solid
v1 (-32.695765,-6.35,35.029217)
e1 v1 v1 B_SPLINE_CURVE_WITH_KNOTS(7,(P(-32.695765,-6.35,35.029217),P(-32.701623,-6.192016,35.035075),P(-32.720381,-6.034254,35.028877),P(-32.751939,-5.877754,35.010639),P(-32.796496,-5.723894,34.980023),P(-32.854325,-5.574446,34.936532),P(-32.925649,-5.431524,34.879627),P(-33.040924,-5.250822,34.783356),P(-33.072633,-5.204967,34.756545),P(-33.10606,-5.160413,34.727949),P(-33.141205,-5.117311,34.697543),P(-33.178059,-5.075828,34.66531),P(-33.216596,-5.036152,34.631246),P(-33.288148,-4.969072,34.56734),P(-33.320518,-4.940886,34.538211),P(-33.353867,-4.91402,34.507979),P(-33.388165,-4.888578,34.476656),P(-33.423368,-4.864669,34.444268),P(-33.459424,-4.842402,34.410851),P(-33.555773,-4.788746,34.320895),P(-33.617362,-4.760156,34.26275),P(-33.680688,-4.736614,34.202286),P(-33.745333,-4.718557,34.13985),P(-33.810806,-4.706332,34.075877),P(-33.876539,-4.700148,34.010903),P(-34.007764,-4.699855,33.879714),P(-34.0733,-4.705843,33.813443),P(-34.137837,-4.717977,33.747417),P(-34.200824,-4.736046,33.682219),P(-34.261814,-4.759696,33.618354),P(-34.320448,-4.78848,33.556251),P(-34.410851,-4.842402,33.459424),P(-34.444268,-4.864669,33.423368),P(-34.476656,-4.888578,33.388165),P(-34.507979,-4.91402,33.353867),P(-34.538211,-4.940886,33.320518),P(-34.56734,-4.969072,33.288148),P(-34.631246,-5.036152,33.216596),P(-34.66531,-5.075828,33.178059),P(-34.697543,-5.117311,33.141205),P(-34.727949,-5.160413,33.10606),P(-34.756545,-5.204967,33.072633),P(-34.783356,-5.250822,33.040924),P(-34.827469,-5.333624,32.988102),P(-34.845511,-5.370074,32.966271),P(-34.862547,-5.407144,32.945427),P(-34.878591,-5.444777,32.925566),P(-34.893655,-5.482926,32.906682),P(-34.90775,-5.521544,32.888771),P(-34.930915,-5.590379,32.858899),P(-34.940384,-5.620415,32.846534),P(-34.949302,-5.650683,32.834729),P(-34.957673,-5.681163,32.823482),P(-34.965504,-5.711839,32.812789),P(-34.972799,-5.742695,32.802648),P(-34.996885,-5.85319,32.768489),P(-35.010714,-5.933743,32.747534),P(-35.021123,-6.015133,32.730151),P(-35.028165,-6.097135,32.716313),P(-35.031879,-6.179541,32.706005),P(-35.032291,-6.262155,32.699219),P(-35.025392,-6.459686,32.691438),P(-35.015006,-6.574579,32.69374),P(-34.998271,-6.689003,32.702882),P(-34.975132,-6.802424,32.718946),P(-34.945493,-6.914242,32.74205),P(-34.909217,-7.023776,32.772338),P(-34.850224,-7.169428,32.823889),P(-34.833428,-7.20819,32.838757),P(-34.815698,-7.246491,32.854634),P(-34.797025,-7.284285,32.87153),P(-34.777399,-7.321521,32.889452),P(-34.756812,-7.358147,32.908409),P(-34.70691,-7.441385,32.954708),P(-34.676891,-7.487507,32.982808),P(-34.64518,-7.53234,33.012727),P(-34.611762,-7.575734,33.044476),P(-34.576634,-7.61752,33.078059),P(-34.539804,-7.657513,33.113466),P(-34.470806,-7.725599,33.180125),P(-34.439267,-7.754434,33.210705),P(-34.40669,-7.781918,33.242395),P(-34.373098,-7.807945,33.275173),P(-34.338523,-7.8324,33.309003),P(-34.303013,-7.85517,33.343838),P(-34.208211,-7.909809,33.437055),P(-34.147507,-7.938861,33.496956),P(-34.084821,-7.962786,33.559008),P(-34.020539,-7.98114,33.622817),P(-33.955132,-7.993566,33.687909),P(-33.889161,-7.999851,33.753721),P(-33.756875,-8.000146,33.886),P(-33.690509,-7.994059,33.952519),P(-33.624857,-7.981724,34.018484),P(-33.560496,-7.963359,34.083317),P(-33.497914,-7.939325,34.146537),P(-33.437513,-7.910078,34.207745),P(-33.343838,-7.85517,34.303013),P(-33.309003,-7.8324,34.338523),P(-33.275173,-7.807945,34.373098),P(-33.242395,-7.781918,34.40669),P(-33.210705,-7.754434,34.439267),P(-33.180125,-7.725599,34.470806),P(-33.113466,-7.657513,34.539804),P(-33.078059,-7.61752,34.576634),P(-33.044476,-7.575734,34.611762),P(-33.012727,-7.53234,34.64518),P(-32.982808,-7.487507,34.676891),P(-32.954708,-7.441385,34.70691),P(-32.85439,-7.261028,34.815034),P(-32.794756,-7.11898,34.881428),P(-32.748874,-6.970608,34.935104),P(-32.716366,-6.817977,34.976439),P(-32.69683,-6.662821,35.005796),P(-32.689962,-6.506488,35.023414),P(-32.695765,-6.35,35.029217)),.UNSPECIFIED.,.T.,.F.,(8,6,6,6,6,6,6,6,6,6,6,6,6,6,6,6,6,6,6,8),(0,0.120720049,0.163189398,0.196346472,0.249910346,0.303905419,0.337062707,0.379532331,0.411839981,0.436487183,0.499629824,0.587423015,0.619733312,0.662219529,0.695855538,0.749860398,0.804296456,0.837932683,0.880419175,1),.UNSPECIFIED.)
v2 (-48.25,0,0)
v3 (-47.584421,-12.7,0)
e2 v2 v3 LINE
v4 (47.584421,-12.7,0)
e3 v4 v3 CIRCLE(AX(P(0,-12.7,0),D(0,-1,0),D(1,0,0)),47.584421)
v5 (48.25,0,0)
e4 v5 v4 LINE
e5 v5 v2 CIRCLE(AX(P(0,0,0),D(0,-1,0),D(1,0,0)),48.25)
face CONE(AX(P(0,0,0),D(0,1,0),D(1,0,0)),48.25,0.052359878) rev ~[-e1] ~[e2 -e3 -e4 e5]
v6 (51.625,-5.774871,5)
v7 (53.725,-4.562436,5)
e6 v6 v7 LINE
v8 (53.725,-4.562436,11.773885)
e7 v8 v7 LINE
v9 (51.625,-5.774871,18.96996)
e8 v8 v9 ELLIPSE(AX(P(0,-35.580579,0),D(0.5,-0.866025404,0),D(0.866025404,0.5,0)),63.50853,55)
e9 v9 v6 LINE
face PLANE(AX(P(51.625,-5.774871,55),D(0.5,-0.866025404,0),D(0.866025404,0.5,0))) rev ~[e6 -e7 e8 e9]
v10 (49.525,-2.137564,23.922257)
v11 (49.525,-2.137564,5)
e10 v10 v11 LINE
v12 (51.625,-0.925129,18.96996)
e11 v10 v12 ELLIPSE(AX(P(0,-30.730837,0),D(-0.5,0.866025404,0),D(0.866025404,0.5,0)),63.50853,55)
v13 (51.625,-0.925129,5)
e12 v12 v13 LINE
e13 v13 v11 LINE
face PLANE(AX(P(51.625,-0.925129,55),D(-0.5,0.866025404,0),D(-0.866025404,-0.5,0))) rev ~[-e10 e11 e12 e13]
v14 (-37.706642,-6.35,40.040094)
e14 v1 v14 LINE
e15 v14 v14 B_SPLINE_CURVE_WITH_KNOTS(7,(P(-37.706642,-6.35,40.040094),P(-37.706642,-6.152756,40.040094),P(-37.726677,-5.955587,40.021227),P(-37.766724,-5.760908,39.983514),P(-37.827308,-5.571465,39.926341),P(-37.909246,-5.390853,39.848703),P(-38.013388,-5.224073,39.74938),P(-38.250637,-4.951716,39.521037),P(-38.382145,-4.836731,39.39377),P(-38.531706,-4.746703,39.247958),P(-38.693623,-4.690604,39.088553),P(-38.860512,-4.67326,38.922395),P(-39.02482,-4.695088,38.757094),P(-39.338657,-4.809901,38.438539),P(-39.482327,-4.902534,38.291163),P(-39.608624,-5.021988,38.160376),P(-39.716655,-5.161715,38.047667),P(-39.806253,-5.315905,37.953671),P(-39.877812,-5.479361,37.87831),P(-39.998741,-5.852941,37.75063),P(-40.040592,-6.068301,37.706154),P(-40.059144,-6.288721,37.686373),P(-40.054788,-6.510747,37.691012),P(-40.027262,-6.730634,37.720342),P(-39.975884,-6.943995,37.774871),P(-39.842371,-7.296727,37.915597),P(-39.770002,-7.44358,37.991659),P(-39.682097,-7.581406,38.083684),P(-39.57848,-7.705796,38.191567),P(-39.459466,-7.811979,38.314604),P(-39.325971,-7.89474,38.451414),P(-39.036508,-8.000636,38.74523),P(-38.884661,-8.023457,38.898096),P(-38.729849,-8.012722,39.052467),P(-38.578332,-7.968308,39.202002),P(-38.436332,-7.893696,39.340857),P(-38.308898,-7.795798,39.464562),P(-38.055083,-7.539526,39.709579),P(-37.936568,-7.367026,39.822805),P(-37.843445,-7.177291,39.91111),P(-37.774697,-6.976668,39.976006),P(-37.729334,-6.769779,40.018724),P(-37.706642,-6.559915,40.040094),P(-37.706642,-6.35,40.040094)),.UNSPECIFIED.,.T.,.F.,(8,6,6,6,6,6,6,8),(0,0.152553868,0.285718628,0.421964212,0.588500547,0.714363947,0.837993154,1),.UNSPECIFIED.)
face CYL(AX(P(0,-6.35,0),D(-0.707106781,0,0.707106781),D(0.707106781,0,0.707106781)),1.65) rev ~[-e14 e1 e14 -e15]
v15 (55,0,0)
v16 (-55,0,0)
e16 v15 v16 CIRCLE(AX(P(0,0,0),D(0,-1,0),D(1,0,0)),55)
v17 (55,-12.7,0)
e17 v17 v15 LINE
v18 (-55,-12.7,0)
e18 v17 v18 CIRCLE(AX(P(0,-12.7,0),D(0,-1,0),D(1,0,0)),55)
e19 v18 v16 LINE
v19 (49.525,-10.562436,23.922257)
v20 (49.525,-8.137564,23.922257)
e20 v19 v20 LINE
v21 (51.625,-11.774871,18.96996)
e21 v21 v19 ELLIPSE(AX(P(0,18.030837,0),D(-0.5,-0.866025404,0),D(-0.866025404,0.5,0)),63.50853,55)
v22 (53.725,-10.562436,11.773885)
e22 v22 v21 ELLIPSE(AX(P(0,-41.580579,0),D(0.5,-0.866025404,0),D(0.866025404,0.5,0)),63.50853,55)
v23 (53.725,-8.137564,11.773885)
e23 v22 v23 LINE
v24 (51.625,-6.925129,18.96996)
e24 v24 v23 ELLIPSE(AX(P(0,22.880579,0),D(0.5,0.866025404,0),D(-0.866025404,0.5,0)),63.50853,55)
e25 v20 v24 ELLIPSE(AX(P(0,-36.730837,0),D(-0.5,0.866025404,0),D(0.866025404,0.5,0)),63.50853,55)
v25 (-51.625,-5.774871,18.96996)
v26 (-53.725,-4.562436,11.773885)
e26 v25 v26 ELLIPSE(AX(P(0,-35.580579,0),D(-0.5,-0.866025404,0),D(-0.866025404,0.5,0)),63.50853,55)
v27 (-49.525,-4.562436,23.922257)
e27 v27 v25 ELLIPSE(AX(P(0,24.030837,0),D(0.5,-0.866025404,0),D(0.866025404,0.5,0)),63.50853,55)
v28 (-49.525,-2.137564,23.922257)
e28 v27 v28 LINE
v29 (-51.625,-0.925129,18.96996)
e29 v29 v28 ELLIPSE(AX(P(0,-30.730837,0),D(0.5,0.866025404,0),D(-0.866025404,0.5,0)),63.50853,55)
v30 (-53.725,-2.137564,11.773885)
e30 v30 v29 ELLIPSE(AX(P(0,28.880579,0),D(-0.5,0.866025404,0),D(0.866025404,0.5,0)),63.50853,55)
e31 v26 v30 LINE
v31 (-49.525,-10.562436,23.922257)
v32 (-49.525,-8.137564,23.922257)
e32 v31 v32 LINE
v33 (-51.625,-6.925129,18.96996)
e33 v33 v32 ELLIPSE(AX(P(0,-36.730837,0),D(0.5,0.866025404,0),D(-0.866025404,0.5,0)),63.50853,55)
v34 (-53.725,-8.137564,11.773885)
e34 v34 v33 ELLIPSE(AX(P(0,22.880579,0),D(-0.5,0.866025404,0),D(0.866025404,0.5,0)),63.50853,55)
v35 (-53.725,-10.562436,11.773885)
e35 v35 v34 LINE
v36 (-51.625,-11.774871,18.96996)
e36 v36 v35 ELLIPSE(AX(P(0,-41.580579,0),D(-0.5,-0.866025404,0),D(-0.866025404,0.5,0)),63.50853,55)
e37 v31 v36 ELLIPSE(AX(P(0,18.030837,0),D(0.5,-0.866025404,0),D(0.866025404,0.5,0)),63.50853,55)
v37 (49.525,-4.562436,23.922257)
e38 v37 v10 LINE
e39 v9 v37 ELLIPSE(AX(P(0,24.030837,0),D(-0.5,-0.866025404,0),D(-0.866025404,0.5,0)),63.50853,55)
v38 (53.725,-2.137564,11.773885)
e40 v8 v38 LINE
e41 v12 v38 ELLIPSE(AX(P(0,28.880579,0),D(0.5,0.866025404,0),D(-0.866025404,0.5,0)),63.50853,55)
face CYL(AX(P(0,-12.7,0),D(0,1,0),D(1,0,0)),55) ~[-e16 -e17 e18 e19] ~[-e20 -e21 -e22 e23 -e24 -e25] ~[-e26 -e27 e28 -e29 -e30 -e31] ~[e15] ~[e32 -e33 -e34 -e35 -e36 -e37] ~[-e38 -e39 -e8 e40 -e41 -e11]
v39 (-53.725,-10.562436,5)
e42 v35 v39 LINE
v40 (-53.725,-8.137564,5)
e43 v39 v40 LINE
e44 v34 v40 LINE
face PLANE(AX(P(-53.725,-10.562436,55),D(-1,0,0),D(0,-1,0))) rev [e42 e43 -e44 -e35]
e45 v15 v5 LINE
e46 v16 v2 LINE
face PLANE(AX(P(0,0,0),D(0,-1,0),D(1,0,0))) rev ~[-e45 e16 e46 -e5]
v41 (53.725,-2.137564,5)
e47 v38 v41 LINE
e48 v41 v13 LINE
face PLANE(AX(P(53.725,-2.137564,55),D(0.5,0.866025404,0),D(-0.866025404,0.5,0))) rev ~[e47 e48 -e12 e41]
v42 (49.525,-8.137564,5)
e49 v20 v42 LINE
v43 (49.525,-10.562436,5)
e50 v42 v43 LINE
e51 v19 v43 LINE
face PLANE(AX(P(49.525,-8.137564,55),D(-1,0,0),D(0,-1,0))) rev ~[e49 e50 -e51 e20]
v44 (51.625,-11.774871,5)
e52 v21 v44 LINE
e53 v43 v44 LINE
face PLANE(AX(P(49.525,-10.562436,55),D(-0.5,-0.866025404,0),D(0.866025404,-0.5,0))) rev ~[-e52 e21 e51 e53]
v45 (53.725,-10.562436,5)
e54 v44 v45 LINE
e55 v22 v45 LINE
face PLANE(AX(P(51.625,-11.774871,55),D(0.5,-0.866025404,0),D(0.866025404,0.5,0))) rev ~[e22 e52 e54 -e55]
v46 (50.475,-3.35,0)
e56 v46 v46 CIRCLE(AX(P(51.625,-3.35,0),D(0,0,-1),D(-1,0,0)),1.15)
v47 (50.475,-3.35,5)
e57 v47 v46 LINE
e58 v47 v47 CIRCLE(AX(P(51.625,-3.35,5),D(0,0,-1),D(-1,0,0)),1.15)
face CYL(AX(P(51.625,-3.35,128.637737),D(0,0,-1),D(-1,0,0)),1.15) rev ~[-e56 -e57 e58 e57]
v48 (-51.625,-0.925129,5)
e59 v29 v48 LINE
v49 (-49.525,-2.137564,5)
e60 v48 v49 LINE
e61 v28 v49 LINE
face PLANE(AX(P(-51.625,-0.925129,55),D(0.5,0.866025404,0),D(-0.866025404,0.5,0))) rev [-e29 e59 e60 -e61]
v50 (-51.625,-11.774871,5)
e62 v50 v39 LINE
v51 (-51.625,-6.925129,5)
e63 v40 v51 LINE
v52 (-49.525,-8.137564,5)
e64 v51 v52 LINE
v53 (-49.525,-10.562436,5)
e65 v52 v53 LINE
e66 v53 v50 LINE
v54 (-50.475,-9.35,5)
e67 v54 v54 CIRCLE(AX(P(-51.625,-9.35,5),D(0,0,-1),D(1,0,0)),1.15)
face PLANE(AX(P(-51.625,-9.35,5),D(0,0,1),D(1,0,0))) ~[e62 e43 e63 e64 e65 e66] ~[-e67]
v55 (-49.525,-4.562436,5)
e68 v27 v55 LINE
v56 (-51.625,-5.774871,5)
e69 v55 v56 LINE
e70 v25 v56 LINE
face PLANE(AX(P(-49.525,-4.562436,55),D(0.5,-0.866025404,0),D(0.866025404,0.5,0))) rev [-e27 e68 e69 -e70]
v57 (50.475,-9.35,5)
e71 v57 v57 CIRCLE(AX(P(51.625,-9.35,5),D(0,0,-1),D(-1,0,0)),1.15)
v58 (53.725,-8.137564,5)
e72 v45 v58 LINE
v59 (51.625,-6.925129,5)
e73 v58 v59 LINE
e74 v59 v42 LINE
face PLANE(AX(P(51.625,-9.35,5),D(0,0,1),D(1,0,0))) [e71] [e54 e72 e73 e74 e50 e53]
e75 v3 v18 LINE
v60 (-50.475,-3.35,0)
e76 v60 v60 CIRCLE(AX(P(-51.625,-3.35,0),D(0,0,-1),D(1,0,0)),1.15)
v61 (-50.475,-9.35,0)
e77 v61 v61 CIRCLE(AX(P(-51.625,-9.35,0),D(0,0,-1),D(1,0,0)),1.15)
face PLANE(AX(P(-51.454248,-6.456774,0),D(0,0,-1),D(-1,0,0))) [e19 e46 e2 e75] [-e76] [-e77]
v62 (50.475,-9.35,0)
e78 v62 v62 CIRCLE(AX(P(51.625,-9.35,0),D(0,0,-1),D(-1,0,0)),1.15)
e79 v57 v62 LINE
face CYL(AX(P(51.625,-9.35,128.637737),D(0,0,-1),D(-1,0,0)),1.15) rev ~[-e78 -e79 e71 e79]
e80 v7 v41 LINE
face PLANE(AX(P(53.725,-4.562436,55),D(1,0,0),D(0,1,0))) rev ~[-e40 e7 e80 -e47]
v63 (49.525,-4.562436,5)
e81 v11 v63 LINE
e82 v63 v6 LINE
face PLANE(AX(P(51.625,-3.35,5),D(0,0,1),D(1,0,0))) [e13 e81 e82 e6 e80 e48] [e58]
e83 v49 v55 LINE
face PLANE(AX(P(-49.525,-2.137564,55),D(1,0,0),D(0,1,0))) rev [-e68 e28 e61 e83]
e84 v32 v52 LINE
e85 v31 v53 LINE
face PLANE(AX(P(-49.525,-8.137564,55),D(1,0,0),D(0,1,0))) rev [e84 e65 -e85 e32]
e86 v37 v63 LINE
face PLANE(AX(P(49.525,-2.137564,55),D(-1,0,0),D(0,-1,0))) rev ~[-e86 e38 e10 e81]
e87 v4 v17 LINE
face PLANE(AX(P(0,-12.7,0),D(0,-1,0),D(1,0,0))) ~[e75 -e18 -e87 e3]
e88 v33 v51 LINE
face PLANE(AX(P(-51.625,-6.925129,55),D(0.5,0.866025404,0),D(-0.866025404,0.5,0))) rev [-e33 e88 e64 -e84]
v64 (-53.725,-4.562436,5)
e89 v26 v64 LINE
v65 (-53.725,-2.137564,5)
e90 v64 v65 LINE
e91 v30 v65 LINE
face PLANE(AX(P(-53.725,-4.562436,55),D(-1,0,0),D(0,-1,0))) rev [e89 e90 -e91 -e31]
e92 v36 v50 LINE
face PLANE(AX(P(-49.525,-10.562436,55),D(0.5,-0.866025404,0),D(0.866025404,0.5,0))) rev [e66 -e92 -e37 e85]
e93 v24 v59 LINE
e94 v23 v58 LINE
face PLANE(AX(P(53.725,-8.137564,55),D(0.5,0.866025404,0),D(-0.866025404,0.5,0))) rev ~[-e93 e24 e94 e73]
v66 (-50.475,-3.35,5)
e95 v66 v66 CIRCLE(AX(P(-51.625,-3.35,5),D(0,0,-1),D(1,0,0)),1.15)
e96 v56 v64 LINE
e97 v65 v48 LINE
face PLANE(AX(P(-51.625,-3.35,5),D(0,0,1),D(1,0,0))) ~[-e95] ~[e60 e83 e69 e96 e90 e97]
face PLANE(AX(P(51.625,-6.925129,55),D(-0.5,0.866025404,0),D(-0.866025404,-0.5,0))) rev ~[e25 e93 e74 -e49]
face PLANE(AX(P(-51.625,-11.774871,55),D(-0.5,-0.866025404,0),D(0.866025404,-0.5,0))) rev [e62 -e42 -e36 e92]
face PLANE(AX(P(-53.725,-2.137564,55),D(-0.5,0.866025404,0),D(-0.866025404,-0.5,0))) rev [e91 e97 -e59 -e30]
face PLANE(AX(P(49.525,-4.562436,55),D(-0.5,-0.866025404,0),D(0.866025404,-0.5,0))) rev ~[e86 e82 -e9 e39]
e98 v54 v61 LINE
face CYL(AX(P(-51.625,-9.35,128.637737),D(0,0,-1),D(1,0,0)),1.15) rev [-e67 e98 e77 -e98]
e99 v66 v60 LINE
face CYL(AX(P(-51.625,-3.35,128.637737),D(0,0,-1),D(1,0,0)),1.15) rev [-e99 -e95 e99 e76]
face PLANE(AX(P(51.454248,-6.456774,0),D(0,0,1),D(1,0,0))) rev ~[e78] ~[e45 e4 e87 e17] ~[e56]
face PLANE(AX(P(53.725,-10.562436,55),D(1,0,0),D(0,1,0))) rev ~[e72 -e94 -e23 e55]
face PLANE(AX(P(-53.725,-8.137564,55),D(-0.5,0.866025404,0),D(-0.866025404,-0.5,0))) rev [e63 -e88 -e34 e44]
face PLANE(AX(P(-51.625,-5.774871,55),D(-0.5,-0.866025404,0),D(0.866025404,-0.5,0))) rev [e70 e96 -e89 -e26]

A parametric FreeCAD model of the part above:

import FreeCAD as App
import Part
import Sketcher
from FreeCAD import Vector
Q = App.Units.Quantity

doc = App.newDocument("Part")
body = doc.addObject("PartDesign::Body", "Body")

sketch1 = body.newObject("Sketcher::SketchObject", "Sketch")
sketch1.AttachmentSupport = (doc.getObject("XY_Plane"), [""])
sketch1.MapMode = "FlatFace"
sketch1.addGeometry([
    Part.LineSegment(Vector(48, 0, 0), Vector(48, -13, 0)),
    Part.LineSegment(Vector(48, -13, 0), Vector(55, -13, 0)),
    Part.LineSegment(Vector(55, -13, 0), Vector(55, 0, 0)),
    Part.LineSegment(Vector(55, 0, 0), Vector(48, 0, 0)),
], False)
sketch1.addConstraint([
    Sketcher.Constraint("Coincident", 0, 2, 1, 1),
    Sketcher.Constraint("Coincident", 1, 2, 2, 1),
    Sketcher.Constraint("Coincident", 2, 2, 3, 1),
    Sketcher.Constraint("Coincident", 3, 2, 0, 1),
    Sketcher.Constraint("Horizontal", 1),
    Sketcher.Constraint("Vertical", 2),
    Sketcher.Constraint("Horizontal", 3),
    Sketcher.Constraint("PointOnObject", 2, 2, -1),
    Sketcher.Constraint("Angle", 0, Q("-93 deg")),
    Sketcher.Constraint("DistanceY", 2, 1, 2, 2, Q("12.7 mm")),
    Sketcher.Constraint("DistanceX", -1, 1, 1, 2, Q("55 mm")),
    Sketcher.Constraint("DistanceX", 3, 2, 3, 1, Q("6.75 mm")),
])
revolution = body.newObject("PartDesign::Revolution", "Revolution")
revolution.Profile = sketch1
revolution.ReferenceAxis = (sketch1, ["V_Axis"])
revolution.Angle = 180
revolution.Reversed = True

sketch2 = body.newObject("Sketcher::SketchObject", "Sketch001")
sketch2.AttachmentSupport = (doc.getObject("XY_Plane"), [""])
sketch2.MapMode = "FlatFace"
sketch2.AttachmentOffset = App.Placement(Vector(0, 0, 55), App.Rotation())
sketch2.addGeometry([
    Part.LineSegment(Vector(53.7, -4.6, 0), Vector(53.7, -2.1, 0)),
    Part.LineSegment(Vector(53.7, -2.1, 0), Vector(51.6, -0.9, 0)),
    Part.LineSegment(Vector(51.6, -0.9, 0), Vector(49.5, -2.1, 0)),
    Part.LineSegment(Vector(49.5, -2.1, 0), Vector(49.5, -4.6, 0)),
    Part.LineSegment(Vector(49.5, -4.6, 0), Vector(51.6, -5.8, 0)),
    Part.LineSegment(Vector(51.6, -5.8, 0), Vector(53.7, -4.6, 0)),
    Part.LineSegment(Vector(53.7, -10.6, 0), Vector(53.7, -8.1, 0)),
    Part.LineSegment(Vector(53.7, -8.1, 0), Vector(51.6, -6.9, 0)),
    Part.LineSegment(Vector(51.6, -6.9, 0), Vector(49.5, -8.1, 0)),
    Part.LineSegment(Vector(49.5, -8.1, 0), Vector(49.5, -10.6, 0)),
    Part.LineSegment(Vector(49.5, -10.6, 0), Vector(51.6, -11.8, 0)),
    Part.LineSegment(Vector(51.6, -11.8, 0), Vector(53.7, -10.6, 0)),
], False)
sketch2.addConstraint([
    Sketcher.Constraint("Coincident", 0, 2, 1, 1),
    Sketcher.Constraint("Coincident", 1, 2, 2, 1),
    Sketcher.Constraint("Coincident", 2, 2, 3, 1),
    Sketcher.Constraint("Coincident", 3, 2, 4, 1),
    Sketcher.Constraint("Coincident", 4, 2, 5, 1),
    Sketcher.Constraint("Coincident", 5, 2, 0, 1),
    Sketcher.Constraint("Coincident", 6, 2, 7, 1),
    Sketcher.Constraint("Coincident", 7, 2, 8, 1),
    Sketcher.Constraint("Coincident", 8, 2, 9, 1),
    Sketcher.Constraint("Coincident", 9, 2, 10, 1),
    Sketcher.Constraint("Coincident", 10, 2, 11, 1),
    Sketcher.Constraint("Coincident", 11, 2, 6, 1),
    Sketcher.Constraint("Vertical", 0),
    Sketcher.Constraint("Vertical", 3),
    Sketcher.Constraint("Vertical", 6),
    Sketcher.Constraint("Vertical", 9),
    Sketcher.Constraint("Parallel", 1, 4),
    Sketcher.Constraint("Parallel", 2, 5),
    Sketcher.Constraint("Parallel", 4, 7),
    Sketcher.Constraint("Parallel", 5, 8),
    Sketcher.Constraint("Parallel", 7, 10),
    Sketcher.Constraint("Parallel", 8, 11),
    Sketcher.Constraint("Horizontal", 0, 2, 2, 2),
    Sketcher.Constraint("Horizontal", 3, 2, 5, 2),
    Sketcher.Constraint("Horizontal", 6, 2, 8, 2),
    Sketcher.Constraint("Horizontal", 9, 2, 11, 2),
    Sketcher.Constraint("Vertical", 1, 2, 4, 2),
    Sketcher.Constraint("Vertical", 5, 2, 6, 2),
    Sketcher.Constraint("Vertical", 4, 2, 7, 2),
    Sketcher.Constraint("Equal", 3, 6),
    Sketcher.Constraint("Angle", 1, Q("150 deg")),
    Sketcher.Constraint("DistanceY", 6, 2, 0, 2, Q("6 mm")),
    Sketcher.Constraint("DistanceX", 1, 2, 0, 2, Q("2.1 mm")),
    Sketcher.Constraint("DistanceX", -1, 1, 0, 2, Q("53.725 mm")),
    Sketcher.Constraint("DistanceY", 0, 1, 0, 2, Q("2.424871 mm")),
    Sketcher.Constraint("DistanceY", 1, 2, -1, 1, Q("0.925129 mm")),
])
pocket1 = body.newObject("PartDesign::Pocket", "Pocket")
pocket1.Profile = sketch2
pocket1.Length = 50

sketch3 = body.newObject("Sketcher::SketchObject", "Sketch002")
sketch3.AttachmentSupport = (doc.getObject("XY_Plane"), [""])
sketch3.MapMode = "FlatFace"
sketch3.AttachmentOffset = App.Placement(Vector(0, 0, 5), App.Rotation())
sketch3.addGeometry([
    Part.Circle(Vector(51.6, -9.3, 0), Vector(0, 0, 1), 1.1),
    Part.Circle(Vector(51.6, -3.4, 0), Vector(0, 0, 1), 1.1),
], False)
sketch3.addConstraint([
    Sketcher.Constraint("Equal", 0, 1),
    Sketcher.Constraint("Vertical", 0, 3, 1, 3),
    Sketcher.Constraint("Diameter", 0, Q("2.3 mm")),
    Sketcher.Constraint("DistanceY", 0, 3, 1, 3, Q("6 mm")),
    Sketcher.Constraint("DistanceY", 0, 3, -1, 1, Q("9.35 mm")),
    Sketcher.Constraint("DistanceX", -1, 1, 0, 3, Q("51.625 mm")),
])
doc.recompute()
hole = body.newObject("PartDesign::Hole", "Hole")
hole.Profile = sketch3
hole.ThreadType = "None"
hole.Diameter = 2.3
hole.DepthType = "ThroughAll"
doc.recompute()

mirrored = body.newObject("PartDesign::Mirrored", "Mirrored")
mirrored.Originals = [pocket1, hole]
mirrored.MirrorPlane = (doc.getObject("YZ_Plane"), [""])
body.Tip = mirrored

sketch4 = body.newObject("Sketcher::SketchObject", "Sketch003")
sketch4.Placement = App.Placement(Vector(0, 0, 0), App.Rotation(Vector(0.707106781, 0, 0.707106781), Vector(0, 0.999999999, 0), Vector(-0.707106781, 0, 0.707106781), "ZXY"))
sketch4.addGeometry(Part.Circle(Vector(0, -6.3, 0), Vector(0, 0, 1), 1.6), False)
sketch4.addConstraint([
    Sketcher.Constraint("PointOnObject", 0, 3, -2),
    Sketcher.Constraint("Diameter", 0, Q("3.3 mm")),
    Sketcher.Constraint("DistanceY", 0, 3, -1, 1, Q("6.35 mm")),
])
pocket2 = body.newObject("PartDesign::Pocket", "Pocket001")
pocket2.Profile = sketch4
pocket2.Length = 200
pocket2.Midplane = True

doc.recompute()
